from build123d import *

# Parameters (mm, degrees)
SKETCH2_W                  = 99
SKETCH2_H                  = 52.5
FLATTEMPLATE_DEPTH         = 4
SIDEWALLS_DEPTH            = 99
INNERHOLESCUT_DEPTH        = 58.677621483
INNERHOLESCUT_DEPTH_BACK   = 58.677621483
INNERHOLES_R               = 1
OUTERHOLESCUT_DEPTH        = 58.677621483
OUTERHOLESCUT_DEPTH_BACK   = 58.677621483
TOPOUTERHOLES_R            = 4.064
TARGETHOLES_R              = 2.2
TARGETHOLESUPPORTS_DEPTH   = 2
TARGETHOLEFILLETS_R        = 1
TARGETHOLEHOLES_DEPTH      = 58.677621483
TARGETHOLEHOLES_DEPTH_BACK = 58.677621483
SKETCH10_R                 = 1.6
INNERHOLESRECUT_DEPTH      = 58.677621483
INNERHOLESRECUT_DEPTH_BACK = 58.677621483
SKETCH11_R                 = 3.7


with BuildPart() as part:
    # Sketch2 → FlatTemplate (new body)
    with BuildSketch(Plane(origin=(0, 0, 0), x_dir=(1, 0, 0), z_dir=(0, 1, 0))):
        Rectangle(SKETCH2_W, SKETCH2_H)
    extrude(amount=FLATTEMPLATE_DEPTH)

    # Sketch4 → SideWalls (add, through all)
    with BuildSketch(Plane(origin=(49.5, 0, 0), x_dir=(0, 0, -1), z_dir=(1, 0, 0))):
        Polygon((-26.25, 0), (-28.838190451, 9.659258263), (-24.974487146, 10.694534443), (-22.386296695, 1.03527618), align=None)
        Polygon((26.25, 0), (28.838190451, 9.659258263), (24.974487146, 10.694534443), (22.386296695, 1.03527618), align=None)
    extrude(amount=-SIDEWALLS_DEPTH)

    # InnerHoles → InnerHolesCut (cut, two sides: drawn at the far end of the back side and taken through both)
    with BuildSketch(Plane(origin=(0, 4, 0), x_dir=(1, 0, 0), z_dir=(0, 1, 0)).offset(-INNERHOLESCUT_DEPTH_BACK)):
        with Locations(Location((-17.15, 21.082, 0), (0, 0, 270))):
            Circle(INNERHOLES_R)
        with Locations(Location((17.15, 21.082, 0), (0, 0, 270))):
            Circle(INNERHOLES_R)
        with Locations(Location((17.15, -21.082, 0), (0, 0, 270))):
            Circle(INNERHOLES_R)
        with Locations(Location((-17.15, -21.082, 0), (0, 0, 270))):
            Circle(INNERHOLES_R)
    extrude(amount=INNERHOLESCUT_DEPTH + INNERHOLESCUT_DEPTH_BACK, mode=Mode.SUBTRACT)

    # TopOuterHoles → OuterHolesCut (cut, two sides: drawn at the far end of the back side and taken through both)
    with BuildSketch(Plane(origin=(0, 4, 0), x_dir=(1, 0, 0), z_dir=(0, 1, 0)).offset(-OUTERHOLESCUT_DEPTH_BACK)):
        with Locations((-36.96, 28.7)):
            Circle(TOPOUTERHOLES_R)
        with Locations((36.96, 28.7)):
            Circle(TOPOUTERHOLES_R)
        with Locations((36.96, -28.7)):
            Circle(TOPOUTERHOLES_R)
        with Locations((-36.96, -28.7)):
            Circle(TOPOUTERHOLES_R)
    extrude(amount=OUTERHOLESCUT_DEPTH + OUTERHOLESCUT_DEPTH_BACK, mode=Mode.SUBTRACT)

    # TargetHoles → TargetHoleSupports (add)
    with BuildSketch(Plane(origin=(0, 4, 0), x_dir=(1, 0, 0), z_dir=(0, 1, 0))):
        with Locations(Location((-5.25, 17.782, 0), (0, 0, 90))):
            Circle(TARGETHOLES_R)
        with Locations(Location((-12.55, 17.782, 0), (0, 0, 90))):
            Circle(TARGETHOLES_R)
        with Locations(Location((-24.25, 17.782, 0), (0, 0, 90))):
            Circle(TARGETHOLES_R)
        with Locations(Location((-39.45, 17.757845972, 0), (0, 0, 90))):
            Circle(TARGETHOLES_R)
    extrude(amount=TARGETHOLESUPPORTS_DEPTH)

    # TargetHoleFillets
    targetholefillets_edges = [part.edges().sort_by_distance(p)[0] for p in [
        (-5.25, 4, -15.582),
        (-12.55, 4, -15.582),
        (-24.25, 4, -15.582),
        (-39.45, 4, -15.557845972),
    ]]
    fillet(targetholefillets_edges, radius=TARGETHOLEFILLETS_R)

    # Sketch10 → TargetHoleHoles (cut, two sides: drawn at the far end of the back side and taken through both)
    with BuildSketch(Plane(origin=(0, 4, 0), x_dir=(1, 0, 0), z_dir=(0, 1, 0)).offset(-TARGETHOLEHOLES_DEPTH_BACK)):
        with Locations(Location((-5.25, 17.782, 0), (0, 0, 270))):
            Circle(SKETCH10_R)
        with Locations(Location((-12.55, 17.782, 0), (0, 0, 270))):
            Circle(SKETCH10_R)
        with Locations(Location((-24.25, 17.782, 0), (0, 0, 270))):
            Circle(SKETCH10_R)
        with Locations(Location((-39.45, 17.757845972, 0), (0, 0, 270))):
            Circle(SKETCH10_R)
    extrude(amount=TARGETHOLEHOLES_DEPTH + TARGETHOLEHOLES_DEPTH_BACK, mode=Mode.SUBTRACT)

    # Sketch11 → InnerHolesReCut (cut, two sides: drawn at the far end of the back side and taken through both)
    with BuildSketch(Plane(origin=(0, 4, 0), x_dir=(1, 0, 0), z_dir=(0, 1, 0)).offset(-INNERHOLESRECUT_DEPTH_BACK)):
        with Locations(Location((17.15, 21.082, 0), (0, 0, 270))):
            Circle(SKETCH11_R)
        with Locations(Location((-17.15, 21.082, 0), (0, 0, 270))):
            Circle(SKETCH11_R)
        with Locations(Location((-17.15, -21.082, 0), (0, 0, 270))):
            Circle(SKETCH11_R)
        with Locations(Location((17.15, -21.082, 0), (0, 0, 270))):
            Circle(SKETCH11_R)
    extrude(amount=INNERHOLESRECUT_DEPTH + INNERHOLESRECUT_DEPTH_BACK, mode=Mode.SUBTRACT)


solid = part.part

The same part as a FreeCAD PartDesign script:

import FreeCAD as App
import Part
import Sketcher

V = App.Vector
Q = App.Units.Quantity


def edges_at(feature, points):
    """Names of the edges that pass closest to the given points."""
    edges = feature.Shape.Edges
    near = lambda p: min(range(len(edges)), key=lambda i: edges[i].distToShape(Part.Vertex(*p))[0])
    return sorted({f"Edge{near(p) + 1}" for p in points})

doc = App.newDocument("Part")
params = doc.addObject("Spreadsheet::Sheet", "Params")
for row, (alias, value) in enumerate([
    ("sketch1_width", "99 mm"),
    ("sketch1_height", "52.5 mm"),
    ("pad1_length", "4 mm"),
    ("sketch2_length", "10 mm"),
    ("sketch2_length2", "4 mm"),
    ("pad2_length", "99 mm"),
    ("sketch3_diameter", "2 mm"),
    ("sketch5_diameter", "4.4 mm"),
    ("pad3_length", "2 mm"),
    ("fillet_radius", "1 mm"),
    ("sketch6_diameter", "3.2 mm"),
    ("sketch7_diameter", "7.4 mm"),
], start=1):
    params.set(f"A{row}", alias)
    params.set(f"B{row}", "=" + value)
    params.setAlias(f"B{row}", alias)

body = doc.addObject("PartDesign::Body", "Body")

# Sketch on XZ plane
sketch1 = body.newObject("Sketcher::SketchObject", "Sketch")
sketch1.AttachmentSupport = (doc.getObject("XZ_Plane"), [""])
sketch1.MapMode = "FlatFace"
sketch1.addGeometry([
    Part.LineSegment(V(-50, -26, 0), V(-50, 26, 0)),
    Part.LineSegment(V(-50, 26, 0), V(50, 26, 0)),
    Part.LineSegment(V(50, 26, 0), V(50, -26, 0)),
    Part.LineSegment(V(50, -26, 0), V(-50, -26, 0)),
], False)
sketch1.addConstraint([
    Sketcher.Constraint("Coincident", 0, 2, 1, 1),
    Sketcher.Constraint("Coincident", 1, 2, 2, 1),
    Sketcher.Constraint("Coincident", 2, 2, 3, 1),
    Sketcher.Constraint("Coincident", 3, 2, 0, 1),
    Sketcher.Constraint("Vertical", 0),
    Sketcher.Constraint("Horizontal", 1),
    Sketcher.Constraint("Vertical", 2),
    Sketcher.Constraint("Horizontal", 3),
    Sketcher.Constraint("Symmetric", 0, 2, 2, 2, -1, 1),
    Sketcher.Constraint("DistanceX", 1, 1, 1, 2, 99.0),
    Sketcher.Constraint("DistanceY", 0, 1, 0, 2, 52.5),
])
sketch1.setExpression("Constraints[9]", "Params.sketch1_width")
sketch1.setExpression("Constraints[10]", "Params.sketch1_height")
pad1 = body.newObject("PartDesign::Pad", "Pad")
pad1.Profile = sketch1
pad1.setExpression("Length", "Params.pad1_length")
pad1.Reversed = True

# Sketch on YZ plane
sketch2 = body.newObject("Sketcher::SketchObject", "Sketch001")
sketch2.AttachmentSupport = (doc.getObject("YZ_Plane"), [""])
sketch2.MapMode = "FlatFace"
sketch2.AttachmentOffset = App.Placement(V(0, 0, 49.5), App.Rotation())
sketch2.addGeometry([
    Part.LineSegment(V(9.7, 28.8, 0), V(0, 26.2, 0)),  # 0
    Part.LineSegment(V(0, 26.2, 0), V(1, 22.4, 0)),  # 1
    Part.LineSegment(V(1, 22.4, 0), V(10.7, 25, 0)),  # 2
    Part.LineSegment(V(10.7, 25, 0), V(9.7, 28.8, 0)),  # 3
    Part.LineSegment(V(0, -26.2, 0), V(9.7, -28.8, 0)),  # 4
    Part.LineSegment(V(9.7, -28.8, 0), V(10.7, -25, 0)),  # 5
    Part.LineSegment(V(10.7, -25, 0), V(1, -22.4, 0)),  # 6
    Part.LineSegment(V(1, -22.4, 0), V(0, -26.2, 0)),  # 7
], False)
sketch2.addConstraint([
    Sketcher.Constraint("Coincident", 0, 2, 1, 1),
    Sketcher.Constraint("Coincident", 1, 2, 2, 1),
    Sketcher.Constraint("Coincident", 2, 2, 3, 1),
    Sketcher.Constraint("Coincident", 3, 2, 0, 1),
    Sketcher.Constraint("Coincident", 4, 2, 5, 1),
    Sketcher.Constraint("Coincident", 5, 2, 6, 1),
    Sketcher.Constraint("Coincident", 6, 2, 7, 1),
    Sketcher.Constraint("Coincident", 7, 2, 4, 1),
    Sketcher.Constraint("Symmetric", 0, 2, 7, 2, -1, 1),
    Sketcher.Constraint("Symmetric", 3, 2, 4, 2, -1),
    Sketcher.Constraint("Symmetric", 2, 2, 5, 2, -1),
    Sketcher.Constraint("Symmetric", 1, 2, 6, 2, -1),
    Sketcher.Constraint("PointOnObject", 0, 2, -2),
    Sketcher.Constraint("Perpendicular", 0, 1),
    Sketcher.Constraint("Perpendicular", 1, 2),
    Sketcher.Constraint("Perpendicular", 2, 3),
    Sketcher.Constraint("Angle", 0, Q("-165 deg")),
    Sketcher.Constraint("Distance", 0, 10.0),
    Sketcher.Constraint("Distance", 1, 4.0),
    Sketcher.Constraint("DistanceY", -1, 1, 0, 2, 26.25),
])
sketch2.setExpression("Constraints[17]", "Params.sketch2_length")
sketch2.setExpression("Constraints[18]", "Params.sketch2_length2")
pad2 = body.newObject("PartDesign::Pad", "Pad001")
pad2.Profile = sketch2
pad2.setExpression("Length", "Params.pad2_length")
pad2.Reversed = True

# Sketch on XZ plane
sketch3 = body.newObject("Sketcher::SketchObject", "Sketch002")
sketch3.AttachmentSupport = (doc.getObject("XZ_Plane"), [""])
sketch3.MapMode = "FlatFace"
sketch3.AttachmentOffset = App.Placement(V(0, 0, -4), App.Rotation())
sketch3.addGeometry([
    Part.Circle(V(-17.1, -21.1, 0), V(0, 0, 1), 1),
    Part.Circle(V(17.1, -21.1, 0), V(0, 0, 1), 1),
    Part.Circle(V(17.1, 21.1, 0), V(0, 0, 1), 1),
    Part.Circle(V(-17.1, 21.1, 0), V(0, 0, 1), 1),
], False)
sketch3.addConstraint([
    Sketcher.Constraint("Equal", 0, 1),
    Sketcher.Constraint("Equal", 1, 2),
    Sketcher.Constraint("Equal", 2, 3),
    Sketcher.Constraint("Symmetric", 0, 3, 2, 3, -1, 1),
    Sketcher.Constraint("Symmetric", 1, 3, 3, 3, -1, 1),
    Sketcher.Constraint("Symmetric", 0, 3, 1, 3, -2),
    Sketcher.Constraint("Diameter", 0, 2.0),
    Sketcher.Constraint("DistanceX", 0, 3, 1, 3, 34.3),
    Sketcher.Constraint("DistanceY", 0, 3, -1, 1, 21.082),
])
sketch3.setExpression("Constraints[6]", "Params.sketch3_diameter")
pocket1 = body.newObject("PartDesign::Pocket", "Pocket")
pocket1.Profile = sketch3
pocket1.Type = "ThroughAll"
pocket1.Midplane = True

# Sketch on XZ plane
sketch4 = body.newObject("Sketcher::SketchObject", "Sketch003")
sketch4.AttachmentSupport = (doc.getObject("XZ_Plane"), [""])
sketch4.MapMode = "FlatFace"
sketch4.AttachmentOffset = App.Placement(V(0, 0, -4), App.Rotation())
sketch4.addGeometry([
    Part.Circle(V(-37, -28.7, 0), V(0, 0, 1), 4.1),
    Part.Circle(V(37, -28.7, 0), V(0, 0, 1), 4.1),
    Part.Circle(V(37, 28.7, 0), V(0, 0, 1), 4.1),
    Part.Circle(V(-37, 28.7, 0), V(0, 0, 1), 4.1),
], False)
sketch4.addConstraint([
    Sketcher.Constraint("Equal", 0, 1),
    Sketcher.Constraint("Equal", 1, 2),
    Sketcher.Constraint("Equal", 2, 3),
    Sketcher.Constraint("Symmetric", 0, 3, 2, 3, -1, 1),
    Sketcher.Constraint("Symmetric", 1, 3, 3, 3, -1, 1),
    Sketcher.Constraint("Symmetric", 0, 3, 1, 3, -2),
    Sketcher.Constraint("Diameter", 0, 8.128),
    Sketcher.Constraint("DistanceY", 0, 3, -1, 1, 28.7),
    Sketcher.Constraint("DistanceX", 0, 3, -1, 1, 36.96),
])
pocket2 = body.newObject("PartDesign::Pocket", "Pocket001")
pocket2.Profile = sketch4
pocket2.Type = "ThroughAll"
pocket2.Midplane = True

# Sketch on XZ plane
sketch5 = body.newObject("Sketcher::SketchObject", "Sketch004")
sketch5.AttachmentSupport = (doc.getObject("XZ_Plane"), [""])
sketch5.MapMode = "FlatFace"
sketch5.AttachmentOffset = App.Placement(V(0, 0, -4), App.Rotation())
sketch5.addGeometry([
    Part.Circle(V(-5.2, -17.8, 0), V(0, 0, 1), 2.2),
    Part.Circle(V(-12.6, -17.8, 0), V(0, 0, 1), 2.2),
    Part.Circle(V(-24.2, -17.8, 0), V(0, 0, 1), 2.2),
    Part.Circle(V(-39.5, -17.8, 0), V(0, 0, 1), 2.2),
], False)
sketch5.addConstraint([
    Sketcher.Constraint("Equal", 0, 1),
    Sketcher.Constraint("Equal", 1, 2),
    Sketcher.Constraint("Equal", 2, 3),
    Sketcher.Constraint("Horizontal", 0, 3, 1, 3),
    Sketcher.Constraint("Horizontal", 1, 3, 2, 3),
    Sketcher.Constraint("Diameter", 0, 4.4),
    Sketcher.Constraint("DistanceX", 2, 3, 0, 3, 19.0),
    Sketcher.Constraint("DistanceX", 1, 3, 0, 3, 7.3),
    Sketcher.Constraint("DistanceX", 3, 3, 2, 3, 15.2),
    Sketcher.Constraint("DistanceX", 0, 3, -1, 1, 5.25),
    Sketcher.Constraint("DistanceY", 0, 3, -1, 1, 17.782),
    Sketcher.Constraint("DistanceY", 3, 3, -1, 1, 17.757846),
])
sketch5.setExpression("Constraints[5]", "Params.sketch5_diameter")
pad3 = body.newObject("PartDesign::Pad", "Pad002")
pad3.Profile = sketch5
pad3.setExpression("Length", "Params.pad3_length")
pad3.Reversed = True
doc.recompute()

fillet = body.newObject("PartDesign::Fillet", "Fillet")
fillet.Base = (pad3, edges_at(pad3, [
    (-5.25, 4, -15.582),
    (-12.55, 4, -15.582),
    (-24.25, 4, -15.582),
    (-39.45, 4, -15.558),
]))
fillet.setExpression("Radius", "Params.fillet_radius")

# Sketch on XZ plane
sketch6 = body.newObject("Sketcher::SketchObject", "Sketch005")
sketch6.AttachmentSupport = (doc.getObject("XZ_Plane"), [""])
sketch6.MapMode = "FlatFace"
sketch6.AttachmentOffset = App.Placement(V(0, 0, -4), App.Rotation())
sketch6.addGeometry([
    Part.Circle(V(-5.2, -17.8, 0), V(0, 0, 1), 1.6),
    Part.Circle(V(-12.6, -17.8, 0), V(0, 0, 1), 1.6),
    Part.Circle(V(-24.2, -17.8, 0), V(0, 0, 1), 1.6),
    Part.Circle(V(-39.5, -17.8, 0), V(0, 0, 1), 1.6),
], False)
sketch6.addConstraint([
    Sketcher.Constraint("Equal", 0, 1),
    Sketcher.Constraint("Equal", 1, 2),
    Sketcher.Constraint("Equal", 2, 3),
    Sketcher.Constraint("Horizontal", 0, 3, 1, 3),
    Sketcher.Constraint("Horizontal", 1, 3, 2, 3),
    Sketcher.Constraint("Diameter", 0, 3.2),
    Sketcher.Constraint("DistanceX", 2, 3, 0, 3, 19.0),
    Sketcher.Constraint("DistanceX", 1, 3, 0, 3, 7.3),
    Sketcher.Constraint("DistanceX", 3, 3, 2, 3, 15.2),
    Sketcher.Constraint("DistanceX", 0, 3, -1, 1, 5.25),
    Sketcher.Constraint("DistanceY", 0, 3, -1, 1, 17.782),
    Sketcher.Constraint("DistanceY", 3, 3, -1, 1, 17.757846),
])
sketch6.setExpression("Constraints[5]", "Params.sketch6_diameter")
pocket3 = body.newObject("PartDesign::Pocket", "Pocket002")
pocket3.Profile = sketch6
pocket3.Type = "ThroughAll"
pocket3.Midplane = True

# Sketch on XZ plane
sketch7 = body.newObject("Sketcher::SketchObject", "Sketch006")
sketch7.AttachmentSupport = (doc.getObject("XZ_Plane"), [""])
sketch7.MapMode = "FlatFace"
sketch7.AttachmentOffset = App.Placement(V(0, 0, -4), App.Rotation())
sketch7.addGeometry([
    Part.Circle(V(17.1, -21.1, 0), V(0, 0, 1), 3.7),
    Part.Circle(V(-17.1, -21.1, 0), V(0, 0, 1), 3.7),
    Part.Circle(V(-17.1, 21.1, 0), V(0, 0, 1), 3.7),
    Part.Circle(V(17.1, 21.1, 0), V(0, 0, 1), 3.7),
], False)
sketch7.addConstraint([
    Sketcher.Constraint("Equal", 0, 1),
    Sketcher.Constraint("Equal", 1, 2),
    Sketcher.Constraint("Equal", 2, 3),
    Sketcher.Constraint("Symmetric", 0, 3, 2, 3, -1, 1),
    Sketcher.Constraint("Symmetric", 1, 3, 3, 3, -1, 1),
    Sketcher.Constraint("Symmetric", 0, 3, 1, 3, -2),
    Sketcher.Constraint("Diameter", 0, 7.4),
    Sketcher.Constraint("DistanceX", 1, 3, 0, 3, 34.3),
    Sketcher.Constraint("DistanceY", 0, 3, -1, 1, 21.082),
])
sketch7.setExpression("Constraints[6]", "Params.sketch7_diameter")
pocket4 = body.newObject("PartDesign::Pocket", "Pocket003")
pocket4.Profile = sketch7
pocket4.Type = "ThroughAll"
pocket4.Midplane = True

doc.recompute()
